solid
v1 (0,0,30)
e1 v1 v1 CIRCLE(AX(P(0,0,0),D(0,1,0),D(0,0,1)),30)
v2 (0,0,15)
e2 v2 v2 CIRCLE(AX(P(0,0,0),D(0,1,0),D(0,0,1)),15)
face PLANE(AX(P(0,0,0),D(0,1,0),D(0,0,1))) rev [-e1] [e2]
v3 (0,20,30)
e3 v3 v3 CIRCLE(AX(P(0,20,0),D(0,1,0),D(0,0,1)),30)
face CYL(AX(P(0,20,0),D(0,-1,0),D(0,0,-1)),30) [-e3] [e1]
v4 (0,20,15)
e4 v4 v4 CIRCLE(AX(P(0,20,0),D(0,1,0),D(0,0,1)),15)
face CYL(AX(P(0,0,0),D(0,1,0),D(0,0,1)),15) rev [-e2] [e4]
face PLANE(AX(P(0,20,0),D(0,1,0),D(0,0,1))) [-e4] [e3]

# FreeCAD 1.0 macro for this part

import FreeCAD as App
import Part
import Sketcher

doc = App.newDocument("Part")
body = doc.addObject("PartDesign::Body", "Body")

# Sketch on XZ plane
sketch1 = body.newObject("Sketcher::SketchObject", "Sketch")
sketch1.AttachmentSupport = (doc.getObject("XZ_Plane"), [""])
sketch1.MapMode = "FlatFace"
sketch1.addGeometry(Part.Circle(App.Vector(0, 0, 0), App.Vector(0, 0, 1), 30), False)
sketch1.addConstraint(Sketcher.Constraint("Coincident", 0, 3, -1, 1))
sketch1.addConstraint(Sketcher.Constraint("Diameter", 0, 60.0))
pad1 = body.newObject("PartDesign::Pad", "Pad")
pad1.Profile = sketch1
pad1.Length = 20
pad1.Reversed = True

# Sketch on XZ plane
sketch2 = body.newObject("Sketcher::SketchObject", "Sketch001")
sketch2.AttachmentSupport = (doc.getObject("XZ_Plane"), [""])
sketch2.MapMode = "FlatFace"
sketch2.AttachmentOffset = App.Placement(App.Vector(0, 0, -20), App.Rotation())
sketch2.addGeometry(Part.Circle(App.Vector(0, 0, 0), App.Vector(0, 0, 1), 15), False)
sketch2.addConstraint(Sketcher.Constraint("Coincident", 0, 3, -1, 1))
sketch2.addConstraint(Sketcher.Constraint("Diameter", 0, 30.0))
pocket1 = body.newObject("PartDesign::Pocket", "Pocket")
pocket1.Profile = sketch2
pocket1.Length = 20
pocket1.Reversed = True

doc.recompute()
